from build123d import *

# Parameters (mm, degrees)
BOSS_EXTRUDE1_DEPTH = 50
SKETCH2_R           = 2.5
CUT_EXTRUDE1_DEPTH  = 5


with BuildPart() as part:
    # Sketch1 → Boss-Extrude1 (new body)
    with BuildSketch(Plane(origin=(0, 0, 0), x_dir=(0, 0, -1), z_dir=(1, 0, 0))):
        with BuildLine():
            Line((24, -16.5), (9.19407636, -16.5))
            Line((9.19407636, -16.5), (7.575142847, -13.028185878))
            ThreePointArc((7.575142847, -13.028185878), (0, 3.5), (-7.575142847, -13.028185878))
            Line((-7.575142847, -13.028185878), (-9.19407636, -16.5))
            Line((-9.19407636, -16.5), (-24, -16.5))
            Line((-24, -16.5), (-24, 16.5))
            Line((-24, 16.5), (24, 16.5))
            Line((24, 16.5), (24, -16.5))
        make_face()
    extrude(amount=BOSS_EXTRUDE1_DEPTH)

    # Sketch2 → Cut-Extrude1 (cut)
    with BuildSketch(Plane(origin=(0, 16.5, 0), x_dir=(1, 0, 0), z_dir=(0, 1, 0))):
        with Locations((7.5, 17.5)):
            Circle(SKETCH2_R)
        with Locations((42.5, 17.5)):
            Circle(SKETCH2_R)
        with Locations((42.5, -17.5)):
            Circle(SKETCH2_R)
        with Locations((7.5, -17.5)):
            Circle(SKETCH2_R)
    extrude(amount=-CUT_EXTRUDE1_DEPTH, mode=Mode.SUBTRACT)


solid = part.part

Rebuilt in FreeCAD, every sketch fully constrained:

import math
import FreeCAD as App
import Part
import Sketcher
from FreeCAD import Vector
Q = App.Units.Quantity

doc = App.newDocument("Part")
body = doc.addObject("PartDesign::Body", "Body")

# Sketch on YZ plane
sketch1 = doc.addObject("Sketcher::SketchObject", "Sketch")
body.addObject(sketch1)
sketch1.AttachmentSupport = (doc.YZ_Plane, [""])
sketch1.MapMode = "FlatFace"
sketch1.addGeometry([
    Part.LineSegment(Vector(-16.5, -9.194076, 0), Vector(-16.5, -24, 0)),  # 0
    Part.LineSegment(Vector(-16.5, -24, 0), Vector(16.5, -24, 0)),  # 1
    Part.LineSegment(Vector(16.5, -24, 0), Vector(16.5, 24, 0)),  # 2
    Part.LineSegment(Vector(16.5, 24, 0), Vector(-16.5, 24, 0)),  # 3
    Part.LineSegment(Vector(-16.5, 24, 0), Vector(-16.5, 9.194076, 0)),  # 4
    Part.LineSegment(Vector(-16.5, 9.194076, 0), Vector(-13.028186, 7.575143, 0)),  # 5
    Part.ArcOfCircle(Part.Circle(Vector(-6.5, 0, 0), Vector(0, 0, 1), 10), math.radians(-130.75445), math.radians(130.75445)),  # 6
    Part.LineSegment(Vector(-13.028186, -7.575143, 0), Vector(-16.5, -9.194076, 0)),  # 7
], False)
sketch1.addConstraint([
    Sketcher.Constraint("Coincident", 0, 2, 1, 1),
    Sketcher.Constraint("Coincident", 1, 2, 2, 1),
    Sketcher.Constraint("Coincident", 2, 2, 3, 1),
    Sketcher.Constraint("Coincident", 3, 2, 4, 1),
    Sketcher.Constraint("Coincident", 4, 2, 5, 1),
    Sketcher.Constraint("Coincident", 5, 2, 6, 2),
    Sketcher.Constraint("Coincident", 6, 1, 7, 1),
    Sketcher.Constraint("Coincident", 7, 2, 0, 1),
    Sketcher.Constraint("Vertical", 0),
    Sketcher.Constraint("Horizontal", 1),
    Sketcher.Constraint("Vertical", 2),
    Sketcher.Constraint("Horizontal", 3),
    Sketcher.Constraint("Vertical", 4),
    Sketcher.Constraint("Symmetric", 0, 2, 2, 2, -1, 1),
    Sketcher.Constraint("Symmetric", 5, 2, 6, 1, -1),
    Sketcher.Constraint("Symmetric", 4, 2, 7, 2, -1),
    Sketcher.Constraint("Radius", 6, Q("10 mm")),
    Sketcher.Constraint("DistanceX", 1, 1, 1, 2, Q("33 mm")),
    Sketcher.Constraint("DistanceY", 2, 1, 2, 2, Q("48 mm")),
    Sketcher.Constraint("Angle", 5, Q("-25 deg")),
    Sketcher.Constraint("DistanceX", 0, 2, 6, 3, Q("10 mm")),
    Sketcher.Constraint("DistanceY", 0, 2, 0, 1, Q("14.805924 mm")),
])
pad1 = doc.addObject("PartDesign::Pad", "Pad")
body.addObject(pad1)
pad1.Profile = sketch1
pad1.Length = 50

# Sketch on XZ plane
sketch2 = doc.addObject("Sketcher::SketchObject", "Sketch001")
body.addObject(sketch2)
sketch2.AttachmentSupport = (doc.XZ_Plane, [""])
sketch2.MapMode = "FlatFace"
sketch2.AttachmentOffset = App.Placement(Vector(0, 0, -16.5), App.Rotation())
sketch2.addGeometry([
    Part.Circle(Vector(7.5, -17.5, 0), Vector(0, 0, 1), 2.5),
    Part.Circle(Vector(42.5, -17.5, 0), Vector(0, 0, 1), 2.5),
    Part.Circle(Vector(42.5, 17.5, 0), Vector(0, 0, 1), 2.5),
    Part.Circle(Vector(7.5, 17.5, 0), Vector(0, 0, 1), 2.5),
], False)
sketch2.addConstraint([
    Sketcher.Constraint("Equal", 0, 1),
    Sketcher.Constraint("Equal", 1, 2),
    Sketcher.Constraint("Equal", 2, 3),
    Sketcher.Constraint("Symmetric", 1, 3, 2, 3, -1),
    Sketcher.Constraint("Symmetric", 0, 3, 3, 3, -1),
    Sketcher.Constraint("Horizontal", 0, 3, 1, 3),
    Sketcher.Constraint("Diameter", 0, Q("5 mm")),
    Sketcher.Constraint("DistanceX", 0, 3, 1, 3, Q("35 mm")),
    Sketcher.Constraint("DistanceY", 1, 3, 2, 3, Q("35 mm")),
    Sketcher.Constraint("DistanceX", -1, 1, 0, 3, Q("7.5 mm")),
])
pocket1 = doc.addObject("PartDesign::Pocket", "Pocket")
body.addObject(pocket1)
pocket1.Profile = sketch2
pocket1.Length = 5
pocket1.Reversed = True

doc.recompute()
